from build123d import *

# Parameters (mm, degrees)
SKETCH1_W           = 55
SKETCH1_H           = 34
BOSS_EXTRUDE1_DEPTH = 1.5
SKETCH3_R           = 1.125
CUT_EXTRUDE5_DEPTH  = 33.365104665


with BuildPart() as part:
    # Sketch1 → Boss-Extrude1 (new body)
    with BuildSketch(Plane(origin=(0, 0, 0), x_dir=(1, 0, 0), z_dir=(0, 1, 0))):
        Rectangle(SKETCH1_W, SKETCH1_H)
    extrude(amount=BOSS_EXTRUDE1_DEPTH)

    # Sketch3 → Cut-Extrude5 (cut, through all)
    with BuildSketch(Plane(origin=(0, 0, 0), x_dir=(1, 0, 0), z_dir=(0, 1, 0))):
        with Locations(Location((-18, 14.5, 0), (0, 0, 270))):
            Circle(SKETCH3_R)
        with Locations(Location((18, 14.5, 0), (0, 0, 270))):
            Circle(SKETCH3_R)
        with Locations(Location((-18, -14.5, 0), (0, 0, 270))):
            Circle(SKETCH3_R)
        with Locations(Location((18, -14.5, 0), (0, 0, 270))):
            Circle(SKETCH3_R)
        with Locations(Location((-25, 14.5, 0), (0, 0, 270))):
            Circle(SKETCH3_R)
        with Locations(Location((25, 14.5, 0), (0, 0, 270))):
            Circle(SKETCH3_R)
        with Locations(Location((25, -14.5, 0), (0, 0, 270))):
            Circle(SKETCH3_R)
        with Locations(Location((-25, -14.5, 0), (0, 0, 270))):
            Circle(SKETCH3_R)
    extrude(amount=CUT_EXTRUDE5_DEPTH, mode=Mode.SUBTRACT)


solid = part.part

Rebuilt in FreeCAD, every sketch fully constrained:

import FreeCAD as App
import Part
import Sketcher
from FreeCAD import Vector

doc = App.newDocument("Part")
params = doc.addObject("Spreadsheet::Sheet", "Params")
for row, (alias, value) in enumerate([
    ("sketch1_width", "55 mm"),
    ("sketch1_height", "34 mm"),
    ("pad1_length", "1.5 mm"),
    ("sketch2_diameter", "2.25 mm"),
], start=1):
    params.set(f"A{row}", alias)
    params.set(f"B{row}", "=" + value)
    params.setAlias(f"B{row}", alias)

body = doc.addObject("PartDesign::Body", "Body")

# Sketch on XZ plane
sketch1 = body.newObject("Sketcher::SketchObject", "Sketch")
sketch1.AttachmentSupport = (doc.getObject("XZ_Plane"), [""])
sketch1.MapMode = "FlatFace"
sketch1.addGeometry([
    Part.LineSegment(Vector(-27.5, -17, 0), Vector(-27.5, 17, 0)),
    Part.LineSegment(Vector(-27.5, 17, 0), Vector(27.5, 17, 0)),
    Part.LineSegment(Vector(27.5, 17, 0), Vector(27.5, -17, 0)),
    Part.LineSegment(Vector(27.5, -17, 0), Vector(-27.5, -17, 0)),
], False)
sketch1.addConstraint([
    Sketcher.Constraint("Coincident", 0, 2, 1, 1),
    Sketcher.Constraint("Coincident", 1, 2, 2, 1),
    Sketcher.Constraint("Coincident", 2, 2, 3, 1),
    Sketcher.Constraint("Coincident", 3, 2, 0, 1),
    Sketcher.Constraint("Vertical", 0),
    Sketcher.Constraint("Horizontal", 1),
    Sketcher.Constraint("Vertical", 2),
    Sketcher.Constraint("Horizontal", 3),
    Sketcher.Constraint("Symmetric", 0, 2, 2, 2, -1, 1),
    Sketcher.Constraint("DistanceX", 1, 1, 1, 2, 55.0),
    Sketcher.Constraint("DistanceY", 0, 1, 0, 2, 34.0),
])
sketch1.setExpression("Constraints[9]", "Params.sketch1_width")
sketch1.setExpression("Constraints[10]", "Params.sketch1_height")
pad1 = body.newObject("PartDesign::Pad", "Pad")
pad1.Profile = sketch1
pad1.setExpression("Length", "Params.pad1_length")
pad1.Reversed = True

# Sketch on XZ plane
sketch2 = body.newObject("Sketcher::SketchObject", "Sketch001")
sketch2.AttachmentSupport = (doc.getObject("XZ_Plane"), [""])
sketch2.MapMode = "FlatFace"
sketch2.addGeometry([
    Part.Circle(Vector(-18, -14.5, 0), Vector(0, 0, 1), 1.125),  # 0
    Part.Circle(Vector(18, -14.5, 0), Vector(0, 0, 1), 1.125),  # 1
    Part.Circle(Vector(-18, 14.5, 0), Vector(0, 0, 1), 1.125),  # 2
    Part.Circle(Vector(18, 14.5, 0), Vector(0, 0, 1), 1.125),  # 3
    Part.Circle(Vector(-25, -14.5, 0), Vector(0, 0, 1), 1.125),  # 4
    Part.Circle(Vector(25, -14.5, 0), Vector(0, 0, 1), 1.125),  # 5
    Part.Circle(Vector(25, 14.5, 0), Vector(0, 0, 1), 1.125),  # 6
    Part.Circle(Vector(-25, 14.5, 0), Vector(0, 0, 1), 1.125),  # 7
], False)
sketch2.addConstraint([
    Sketcher.Constraint("Equal", 0, 1),
    Sketcher.Constraint("Equal", 1, 2),
    Sketcher.Constraint("Equal", 2, 3),
    Sketcher.Constraint("Equal", 3, 4),
    Sketcher.Constraint("Equal", 4, 5),
    Sketcher.Constraint("Equal", 5, 6),
    Sketcher.Constraint("Equal", 6, 7),
    Sketcher.Constraint("Symmetric", 1, 3, 2, 3, -1, 1),
    Sketcher.Constraint("Symmetric", 0, 3, 3, 3, -1, 1),
    Sketcher.Constraint("Symmetric", 4, 3, 6, 3, -1, 1),
    Sketcher.Constraint("Symmetric", 5, 3, 7, 3, -1, 1),
    Sketcher.Constraint("Symmetric", 0, 3, 1, 3, -2),
    Sketcher.Constraint("Symmetric", 4, 3, 5, 3, -2),
    Sketcher.Constraint("Horizontal", 1, 3, 4, 3),
    Sketcher.Constraint("Diameter", 0, 2.25),
    Sketcher.Constraint("DistanceX", 0, 3, -1, 1, 18.0),
    Sketcher.Constraint("DistanceX", 4, 3, -1, 1, 25.0),
    Sketcher.Constraint("DistanceY", 0, 3, 2, 3, 29.0),
])
sketch2.setExpression("Constraints[14]", "Params.sketch2_diameter")
pocket1 = body.newObject("PartDesign::Pocket", "Pocket")
pocket1.Profile = sketch2
pocket1.Type = "ThroughAll"

doc.recompute()
